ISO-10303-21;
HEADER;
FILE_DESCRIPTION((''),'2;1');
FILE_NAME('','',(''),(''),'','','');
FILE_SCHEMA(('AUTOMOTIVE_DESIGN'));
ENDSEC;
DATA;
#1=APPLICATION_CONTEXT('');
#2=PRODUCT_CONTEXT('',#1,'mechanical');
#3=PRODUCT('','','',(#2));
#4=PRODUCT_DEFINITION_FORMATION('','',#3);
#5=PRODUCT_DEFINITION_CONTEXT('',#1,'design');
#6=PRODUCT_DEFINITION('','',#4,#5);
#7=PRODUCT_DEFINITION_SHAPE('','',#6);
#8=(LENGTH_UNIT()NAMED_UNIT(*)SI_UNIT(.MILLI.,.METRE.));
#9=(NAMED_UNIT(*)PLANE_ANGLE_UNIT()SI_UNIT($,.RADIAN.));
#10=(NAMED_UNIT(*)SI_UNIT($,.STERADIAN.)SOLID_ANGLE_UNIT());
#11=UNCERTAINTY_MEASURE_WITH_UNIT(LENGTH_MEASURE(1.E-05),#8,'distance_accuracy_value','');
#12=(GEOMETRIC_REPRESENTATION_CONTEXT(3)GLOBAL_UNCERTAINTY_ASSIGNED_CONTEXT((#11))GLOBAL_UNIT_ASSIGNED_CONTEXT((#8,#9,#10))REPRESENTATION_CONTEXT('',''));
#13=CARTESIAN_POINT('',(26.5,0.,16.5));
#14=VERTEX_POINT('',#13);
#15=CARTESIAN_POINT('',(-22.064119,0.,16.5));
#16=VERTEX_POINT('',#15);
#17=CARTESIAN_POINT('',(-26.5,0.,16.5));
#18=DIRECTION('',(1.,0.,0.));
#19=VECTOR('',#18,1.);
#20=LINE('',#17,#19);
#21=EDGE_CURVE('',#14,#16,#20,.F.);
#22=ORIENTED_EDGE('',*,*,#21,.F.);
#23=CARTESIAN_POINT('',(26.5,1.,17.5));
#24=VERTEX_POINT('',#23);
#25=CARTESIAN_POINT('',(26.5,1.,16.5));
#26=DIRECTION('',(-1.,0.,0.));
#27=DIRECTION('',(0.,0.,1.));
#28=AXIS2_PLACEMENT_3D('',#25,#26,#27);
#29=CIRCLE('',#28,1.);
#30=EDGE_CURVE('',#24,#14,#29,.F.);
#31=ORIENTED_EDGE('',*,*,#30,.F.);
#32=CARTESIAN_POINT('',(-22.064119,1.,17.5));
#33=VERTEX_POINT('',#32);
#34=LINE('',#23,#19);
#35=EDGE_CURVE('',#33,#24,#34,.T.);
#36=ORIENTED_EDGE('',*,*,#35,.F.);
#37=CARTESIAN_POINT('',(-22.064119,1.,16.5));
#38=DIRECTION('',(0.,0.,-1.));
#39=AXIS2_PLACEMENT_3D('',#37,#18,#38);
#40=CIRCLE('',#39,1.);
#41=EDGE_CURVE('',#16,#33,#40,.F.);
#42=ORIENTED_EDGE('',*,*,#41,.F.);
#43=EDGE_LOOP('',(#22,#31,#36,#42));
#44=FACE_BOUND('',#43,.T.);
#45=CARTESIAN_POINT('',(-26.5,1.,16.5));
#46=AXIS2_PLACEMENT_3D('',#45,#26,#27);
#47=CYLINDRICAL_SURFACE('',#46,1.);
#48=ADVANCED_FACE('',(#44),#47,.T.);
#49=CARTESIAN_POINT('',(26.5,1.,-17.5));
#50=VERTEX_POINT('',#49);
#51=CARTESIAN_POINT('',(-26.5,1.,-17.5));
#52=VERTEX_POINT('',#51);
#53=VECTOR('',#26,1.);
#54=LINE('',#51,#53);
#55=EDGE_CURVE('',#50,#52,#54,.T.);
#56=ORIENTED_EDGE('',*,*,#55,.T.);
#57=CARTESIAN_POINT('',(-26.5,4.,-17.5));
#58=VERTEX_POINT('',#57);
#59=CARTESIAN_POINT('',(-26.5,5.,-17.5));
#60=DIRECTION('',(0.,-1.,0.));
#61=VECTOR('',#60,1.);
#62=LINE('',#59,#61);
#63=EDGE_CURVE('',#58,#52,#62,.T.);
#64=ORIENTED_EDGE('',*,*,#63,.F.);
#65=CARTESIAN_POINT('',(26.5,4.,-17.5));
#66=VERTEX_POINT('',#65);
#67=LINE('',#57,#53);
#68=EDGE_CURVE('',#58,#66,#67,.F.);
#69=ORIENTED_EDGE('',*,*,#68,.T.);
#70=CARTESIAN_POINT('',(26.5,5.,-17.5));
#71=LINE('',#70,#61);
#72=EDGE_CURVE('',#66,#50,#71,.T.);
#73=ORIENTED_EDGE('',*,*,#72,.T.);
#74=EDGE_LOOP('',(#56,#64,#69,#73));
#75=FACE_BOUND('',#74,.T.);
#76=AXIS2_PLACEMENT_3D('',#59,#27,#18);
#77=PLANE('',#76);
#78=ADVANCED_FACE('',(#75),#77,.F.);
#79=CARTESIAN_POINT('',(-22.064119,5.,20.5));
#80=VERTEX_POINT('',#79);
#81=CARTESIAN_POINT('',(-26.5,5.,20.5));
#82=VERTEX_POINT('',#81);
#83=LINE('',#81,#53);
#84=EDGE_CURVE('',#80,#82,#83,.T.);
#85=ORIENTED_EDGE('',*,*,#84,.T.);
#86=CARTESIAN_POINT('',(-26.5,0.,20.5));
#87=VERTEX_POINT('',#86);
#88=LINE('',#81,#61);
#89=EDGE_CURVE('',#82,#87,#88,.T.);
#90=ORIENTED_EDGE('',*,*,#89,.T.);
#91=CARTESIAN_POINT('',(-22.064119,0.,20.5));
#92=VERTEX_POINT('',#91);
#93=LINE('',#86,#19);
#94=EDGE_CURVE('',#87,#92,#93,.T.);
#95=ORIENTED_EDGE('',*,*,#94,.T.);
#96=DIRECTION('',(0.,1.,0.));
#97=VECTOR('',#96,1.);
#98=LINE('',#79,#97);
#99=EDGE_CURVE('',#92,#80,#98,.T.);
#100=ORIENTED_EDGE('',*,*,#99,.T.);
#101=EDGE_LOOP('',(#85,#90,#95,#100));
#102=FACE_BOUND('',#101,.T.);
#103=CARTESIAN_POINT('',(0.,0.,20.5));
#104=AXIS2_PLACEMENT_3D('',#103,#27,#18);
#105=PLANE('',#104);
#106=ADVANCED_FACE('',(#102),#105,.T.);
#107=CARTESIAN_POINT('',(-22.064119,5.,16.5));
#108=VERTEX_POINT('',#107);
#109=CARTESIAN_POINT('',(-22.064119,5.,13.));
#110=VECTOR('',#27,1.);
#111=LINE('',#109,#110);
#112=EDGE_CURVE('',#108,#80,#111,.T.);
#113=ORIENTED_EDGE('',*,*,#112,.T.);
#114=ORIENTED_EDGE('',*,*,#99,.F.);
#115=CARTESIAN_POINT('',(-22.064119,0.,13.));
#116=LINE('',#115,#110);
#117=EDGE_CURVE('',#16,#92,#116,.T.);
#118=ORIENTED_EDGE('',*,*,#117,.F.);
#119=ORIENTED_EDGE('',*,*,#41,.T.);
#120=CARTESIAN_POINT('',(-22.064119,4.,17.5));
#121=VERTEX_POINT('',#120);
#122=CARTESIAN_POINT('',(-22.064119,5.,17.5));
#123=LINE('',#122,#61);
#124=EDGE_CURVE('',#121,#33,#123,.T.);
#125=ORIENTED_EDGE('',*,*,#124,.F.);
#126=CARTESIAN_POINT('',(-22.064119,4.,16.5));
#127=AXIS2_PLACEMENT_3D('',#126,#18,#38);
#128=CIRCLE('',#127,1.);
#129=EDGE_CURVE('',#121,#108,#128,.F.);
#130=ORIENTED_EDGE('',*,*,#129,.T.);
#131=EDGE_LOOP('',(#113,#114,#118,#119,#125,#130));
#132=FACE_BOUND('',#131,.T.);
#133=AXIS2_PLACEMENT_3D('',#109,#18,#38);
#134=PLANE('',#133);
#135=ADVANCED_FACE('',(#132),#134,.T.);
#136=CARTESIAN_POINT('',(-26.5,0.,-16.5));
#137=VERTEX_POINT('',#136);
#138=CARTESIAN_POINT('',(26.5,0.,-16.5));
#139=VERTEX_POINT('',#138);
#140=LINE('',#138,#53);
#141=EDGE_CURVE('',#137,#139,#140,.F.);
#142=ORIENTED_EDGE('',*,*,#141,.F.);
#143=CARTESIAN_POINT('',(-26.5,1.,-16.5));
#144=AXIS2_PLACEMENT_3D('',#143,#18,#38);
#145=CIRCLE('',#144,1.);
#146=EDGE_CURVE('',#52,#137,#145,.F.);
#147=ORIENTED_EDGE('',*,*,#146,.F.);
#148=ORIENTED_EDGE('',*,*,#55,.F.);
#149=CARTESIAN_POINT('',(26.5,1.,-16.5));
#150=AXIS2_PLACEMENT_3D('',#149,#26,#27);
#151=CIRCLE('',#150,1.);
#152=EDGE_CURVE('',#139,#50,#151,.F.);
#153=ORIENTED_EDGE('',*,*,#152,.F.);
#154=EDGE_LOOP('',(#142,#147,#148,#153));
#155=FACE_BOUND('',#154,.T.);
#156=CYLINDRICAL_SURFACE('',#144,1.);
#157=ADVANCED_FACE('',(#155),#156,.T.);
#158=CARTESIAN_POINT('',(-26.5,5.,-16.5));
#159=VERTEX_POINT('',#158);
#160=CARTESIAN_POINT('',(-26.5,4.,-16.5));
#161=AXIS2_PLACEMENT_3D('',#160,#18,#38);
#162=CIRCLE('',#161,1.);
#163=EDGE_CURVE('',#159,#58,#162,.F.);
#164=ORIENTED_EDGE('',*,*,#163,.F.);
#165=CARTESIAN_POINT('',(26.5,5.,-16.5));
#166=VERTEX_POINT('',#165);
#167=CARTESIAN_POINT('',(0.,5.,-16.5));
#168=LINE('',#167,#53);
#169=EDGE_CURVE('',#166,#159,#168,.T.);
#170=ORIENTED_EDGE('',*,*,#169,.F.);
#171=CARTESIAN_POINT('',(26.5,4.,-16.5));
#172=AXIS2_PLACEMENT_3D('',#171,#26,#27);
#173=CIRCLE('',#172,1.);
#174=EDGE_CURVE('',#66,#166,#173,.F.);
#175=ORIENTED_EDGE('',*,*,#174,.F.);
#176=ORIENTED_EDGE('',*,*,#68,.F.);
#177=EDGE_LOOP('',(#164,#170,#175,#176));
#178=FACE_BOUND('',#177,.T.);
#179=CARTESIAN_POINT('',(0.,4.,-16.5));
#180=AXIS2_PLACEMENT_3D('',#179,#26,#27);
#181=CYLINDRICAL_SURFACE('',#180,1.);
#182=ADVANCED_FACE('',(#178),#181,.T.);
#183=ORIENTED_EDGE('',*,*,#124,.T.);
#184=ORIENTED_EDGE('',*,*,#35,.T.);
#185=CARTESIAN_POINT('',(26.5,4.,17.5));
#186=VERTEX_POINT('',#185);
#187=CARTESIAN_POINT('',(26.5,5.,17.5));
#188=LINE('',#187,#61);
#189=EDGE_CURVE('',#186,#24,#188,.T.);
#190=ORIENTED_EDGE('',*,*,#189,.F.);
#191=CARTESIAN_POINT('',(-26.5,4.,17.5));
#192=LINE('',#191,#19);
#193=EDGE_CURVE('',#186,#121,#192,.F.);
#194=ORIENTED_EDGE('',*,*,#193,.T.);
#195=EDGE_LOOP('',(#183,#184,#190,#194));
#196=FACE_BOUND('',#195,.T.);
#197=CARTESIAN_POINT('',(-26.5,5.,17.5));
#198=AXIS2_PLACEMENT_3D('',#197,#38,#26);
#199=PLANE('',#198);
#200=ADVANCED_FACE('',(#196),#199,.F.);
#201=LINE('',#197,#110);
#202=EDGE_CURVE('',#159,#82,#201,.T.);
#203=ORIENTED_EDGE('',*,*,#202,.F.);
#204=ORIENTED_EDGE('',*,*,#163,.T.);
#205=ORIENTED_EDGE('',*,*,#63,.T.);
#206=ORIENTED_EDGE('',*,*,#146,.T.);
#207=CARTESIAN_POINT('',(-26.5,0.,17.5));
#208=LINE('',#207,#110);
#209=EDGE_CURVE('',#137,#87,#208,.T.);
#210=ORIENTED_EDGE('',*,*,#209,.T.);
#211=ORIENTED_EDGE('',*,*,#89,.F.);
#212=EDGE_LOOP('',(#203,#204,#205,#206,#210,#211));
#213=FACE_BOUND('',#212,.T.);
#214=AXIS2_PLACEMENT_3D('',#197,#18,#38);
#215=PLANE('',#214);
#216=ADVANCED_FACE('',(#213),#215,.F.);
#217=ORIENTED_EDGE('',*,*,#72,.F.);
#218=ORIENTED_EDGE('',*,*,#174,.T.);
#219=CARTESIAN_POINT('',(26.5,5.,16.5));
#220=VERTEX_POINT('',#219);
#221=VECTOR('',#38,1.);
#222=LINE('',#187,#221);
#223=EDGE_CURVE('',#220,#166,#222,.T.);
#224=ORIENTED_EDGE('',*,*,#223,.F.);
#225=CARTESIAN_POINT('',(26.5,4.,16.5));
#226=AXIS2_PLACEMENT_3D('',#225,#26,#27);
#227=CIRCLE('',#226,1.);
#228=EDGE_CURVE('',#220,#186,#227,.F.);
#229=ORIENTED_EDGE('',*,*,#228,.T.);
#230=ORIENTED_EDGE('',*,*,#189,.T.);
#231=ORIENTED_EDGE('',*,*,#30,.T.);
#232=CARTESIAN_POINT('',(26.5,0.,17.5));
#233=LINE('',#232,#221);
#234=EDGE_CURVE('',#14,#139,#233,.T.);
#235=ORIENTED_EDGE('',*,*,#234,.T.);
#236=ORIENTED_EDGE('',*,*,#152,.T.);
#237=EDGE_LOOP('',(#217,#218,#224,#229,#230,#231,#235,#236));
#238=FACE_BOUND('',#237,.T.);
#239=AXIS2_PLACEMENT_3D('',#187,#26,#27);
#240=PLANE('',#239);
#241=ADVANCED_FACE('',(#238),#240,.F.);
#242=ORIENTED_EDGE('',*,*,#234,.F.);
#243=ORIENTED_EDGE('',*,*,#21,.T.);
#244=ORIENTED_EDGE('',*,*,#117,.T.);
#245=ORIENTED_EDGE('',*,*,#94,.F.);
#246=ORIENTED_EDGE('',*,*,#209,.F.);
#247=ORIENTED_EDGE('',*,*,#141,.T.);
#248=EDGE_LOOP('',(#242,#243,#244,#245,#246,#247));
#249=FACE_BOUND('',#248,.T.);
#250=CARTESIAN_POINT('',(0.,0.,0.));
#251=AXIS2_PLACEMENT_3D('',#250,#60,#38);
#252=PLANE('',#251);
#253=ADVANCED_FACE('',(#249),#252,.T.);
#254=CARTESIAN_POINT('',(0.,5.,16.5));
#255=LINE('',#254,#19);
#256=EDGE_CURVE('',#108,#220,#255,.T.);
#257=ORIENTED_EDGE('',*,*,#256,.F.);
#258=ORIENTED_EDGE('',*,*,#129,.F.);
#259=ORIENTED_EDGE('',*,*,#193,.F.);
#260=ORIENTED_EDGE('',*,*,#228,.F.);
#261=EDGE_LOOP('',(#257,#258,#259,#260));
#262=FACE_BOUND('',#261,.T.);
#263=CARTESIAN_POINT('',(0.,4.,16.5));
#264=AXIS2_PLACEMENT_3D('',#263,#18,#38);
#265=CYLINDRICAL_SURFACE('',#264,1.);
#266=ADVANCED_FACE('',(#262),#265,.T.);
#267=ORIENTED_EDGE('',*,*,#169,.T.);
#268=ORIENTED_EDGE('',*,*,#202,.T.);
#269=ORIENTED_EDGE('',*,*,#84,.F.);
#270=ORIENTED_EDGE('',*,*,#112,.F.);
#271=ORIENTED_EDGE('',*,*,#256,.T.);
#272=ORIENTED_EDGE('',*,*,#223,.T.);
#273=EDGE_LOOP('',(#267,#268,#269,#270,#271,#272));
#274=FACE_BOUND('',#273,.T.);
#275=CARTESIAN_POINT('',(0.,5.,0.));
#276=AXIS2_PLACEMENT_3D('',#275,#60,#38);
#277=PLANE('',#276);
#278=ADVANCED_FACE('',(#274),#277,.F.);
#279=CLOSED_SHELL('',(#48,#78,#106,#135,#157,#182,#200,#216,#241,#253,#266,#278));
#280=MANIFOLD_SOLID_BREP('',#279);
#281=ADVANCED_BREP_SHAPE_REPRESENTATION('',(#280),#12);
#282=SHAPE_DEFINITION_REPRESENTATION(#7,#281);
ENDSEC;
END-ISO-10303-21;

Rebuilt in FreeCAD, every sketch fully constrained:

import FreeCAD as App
import Part
import Sketcher

V = App.Vector
Q = App.Units.Quantity


def edges_at(feature, points):
    """Names of the edges that pass closest to the given points."""
    edges = feature.Shape.Edges
    near = lambda p: min(range(len(edges)), key=lambda i: edges[i].distToShape(Part.Vertex(*p))[0])
    return sorted({f"Edge{near(p) + 1}" for p in points})

doc = App.newDocument("Part")
body = doc.addObject("PartDesign::Body", "Body")

# Sketch on XZ plane
sketch1 = body.newObject("Sketcher::SketchObject", "Sketch")
sketch1.AttachmentSupport = (doc.getObject("XZ_Plane"), [""])
sketch1.MapMode = "FlatFace"
sketch1.addGeometry([
    Part.LineSegment(V(-26, -18, 0), V(-26, 18, 0)),
    Part.LineSegment(V(-26, 18, 0), V(26, 18, 0)),
    Part.LineSegment(V(26, 18, 0), V(26, -18, 0)),
    Part.LineSegment(V(26, -18, 0), V(-26, -18, 0)),
], False)
sketch1.addConstraint([
    Sketcher.Constraint("Coincident", 0, 2, 1, 1),
    Sketcher.Constraint("Coincident", 1, 2, 2, 1),
    Sketcher.Constraint("Coincident", 2, 2, 3, 1),
    Sketcher.Constraint("Coincident", 3, 2, 0, 1),
    Sketcher.Constraint("Vertical", 0),
    Sketcher.Constraint("Horizontal", 1),
    Sketcher.Constraint("Vertical", 2),
    Sketcher.Constraint("Horizontal", 3),
    Sketcher.Constraint("Symmetric", 0, 2, 2, 2, -1, 1),
    Sketcher.Constraint("DistanceX", 1, 1, 1, 2, Q("53 mm")),
    Sketcher.Constraint("DistanceY", 0, 1, 0, 2, Q("35 mm")),
])
pad1 = body.newObject("PartDesign::Pad", "Pad")
pad1.Profile = sketch1
pad1.Length = 5
pad1.Reversed = True
doc.recompute()

fillet = body.newObject("PartDesign::Fillet", "Fillet")
fillet.Base = (pad1, edges_at(pad1, [
    (0, 0, 17.5),
    (0, 5, 17.5),
    (0, 0, -17.5),
    (0, 5, -17.5),
]))
fillet.Radius = 1

# Sketch on XY plane
sketch2 = body.newObject("Sketcher::SketchObject", "Sketch001")
sketch2.AttachmentSupport = (doc.getObject("XY_Plane"), [""])
sketch2.MapMode = "FlatFace"
sketch2.AttachmentOffset = App.Placement(V(0, 0, 17.5), App.Rotation())
sketch2.addGeometry([
    Part.LineSegment(V(-26.5, 5, 0), V(-26.5, 0, 0)),
    Part.LineSegment(V(-26.5, 0, 0), V(-22.1, 0, 0)),
    Part.LineSegment(V(-22.1, 0, 0), V(-22.1, 5, 0)),
    Part.LineSegment(V(-22.1, 5, 0), V(-26.5, 5, 0)),
], False)
sketch2.addConstraint([
    Sketcher.Constraint("Coincident", 0, 2, 1, 1),
    Sketcher.Constraint("Coincident", 1, 2, 2, 1),
    Sketcher.Constraint("Coincident", 2, 2, 3, 1),
    Sketcher.Constraint("Coincident", 3, 2, 0, 1),
    Sketcher.Constraint("Vertical", 0),
    Sketcher.Constraint("Horizontal", 1),
    Sketcher.Constraint("Vertical", 2),
    Sketcher.Constraint("Horizontal", 3),
    Sketcher.Constraint("PointOnObject", 0, 2, -1),
    Sketcher.Constraint("DistanceY", 0, 2, 0, 1, Q("5 mm")),
    Sketcher.Constraint("DistanceX", 0, 2, -1, 1, Q("26.5 mm")),
    Sketcher.Constraint("DistanceX", 1, 1, 1, 2, Q("4.435881 mm")),
])
pad2 = body.newObject("PartDesign::Pad", "Pad001")
pad2.Profile = sketch2
pad2.Type = "TwoLengths"
pad2.Length = 3
pad2.Length2 = 4.5

doc.recompute()
